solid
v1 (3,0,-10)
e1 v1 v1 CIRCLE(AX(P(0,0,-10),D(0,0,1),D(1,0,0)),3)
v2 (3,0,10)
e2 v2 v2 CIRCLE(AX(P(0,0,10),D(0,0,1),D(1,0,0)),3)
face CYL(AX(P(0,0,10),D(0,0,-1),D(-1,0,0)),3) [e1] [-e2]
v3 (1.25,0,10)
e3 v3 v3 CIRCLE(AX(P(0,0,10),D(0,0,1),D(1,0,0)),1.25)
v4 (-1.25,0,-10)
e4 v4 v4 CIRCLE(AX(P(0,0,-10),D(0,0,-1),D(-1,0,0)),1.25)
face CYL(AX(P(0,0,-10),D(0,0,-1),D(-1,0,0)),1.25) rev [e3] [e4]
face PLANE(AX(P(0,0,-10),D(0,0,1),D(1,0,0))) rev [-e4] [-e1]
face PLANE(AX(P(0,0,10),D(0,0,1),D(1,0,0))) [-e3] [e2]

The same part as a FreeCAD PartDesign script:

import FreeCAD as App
import Part
import Sketcher
from FreeCAD import Vector

doc = App.newDocument("Part")
params = doc.addObject("Spreadsheet::Sheet", "Params")
for row, (alias, value) in enumerate([
    ("sketch1_diameter", "6 mm"),
    ("pad1_length", "20 mm"),
    ("sketch2_diameter", "2.5 mm"),
    ("hole_diameter", "2.5 mm"),
    ("hole_depth", "6.5 mm"),
    ("sketch3_diameter", "2.5 mm"),
    ("hole2_diameter", "2.5 mm"),
    ("hole2_depth", "6.5 mm"),
    ("sketch4_diameter", "2.5 mm"),
    ("pocket1_length", "20 mm"),
], start=1):
    params.set(f"A{row}", alias)
    params.set(f"B{row}", "=" + value)
    params.setAlias(f"B{row}", alias)

body = doc.addObject("PartDesign::Body", "Body")

sketch1 = body.newObject("Sketcher::SketchObject", "Sketch")
sketch1.AttachmentSupport = (doc.getObject("XY_Plane"), [""])
sketch1.MapMode = "FlatFace"
sketch1.addGeometry(Part.Circle(Vector(0, 0, 0), Vector(0, 0, 1), 3), False)
sketch1.addConstraint(Sketcher.Constraint("Coincident", 0, 3, -1, 1))
sketch1.addConstraint(Sketcher.Constraint("Diameter", 0, 6.0))
sketch1.setExpression("Constraints[1]", "Params.sketch1_diameter")
pad1 = body.newObject("PartDesign::Pad", "Pad")
pad1.Profile = sketch1
pad1.setExpression("Length", "Params.pad1_length")
pad1.Midplane = True

sketch2 = body.newObject("Sketcher::SketchObject", "Sketch001")
sketch2.AttachmentSupport = (doc.getObject("XY_Plane"), [""])
sketch2.MapMode = "FlatFace"
sketch2.AttachmentOffset = App.Placement(Vector(0, 0, 10), App.Rotation())
sketch2.addGeometry(Part.Circle(Vector(0, 0, 0), Vector(0, 0, 1), 1.25), False)
sketch2.addConstraint(Sketcher.Constraint("Coincident", 0, 3, -1, 1))
sketch2.addConstraint(Sketcher.Constraint("Diameter", 0, 2.5))
sketch2.setExpression("Constraints[1]", "Params.sketch2_diameter")
doc.recompute()
hole = body.newObject("PartDesign::Hole", "Hole")
hole.Profile = sketch2
hole.ThreadType = "None"
hole.setExpression("Diameter", "Params.hole_diameter")
hole.DepthType = "Dimension"
hole.setExpression("Depth", "Params.hole_depth")
hole.DrillPoint = "Angled"
hole.DrillPointAngle = 118

sketch3 = body.newObject("Sketcher::SketchObject", "Sketch002")
sketch3.AttachmentSupport = (doc.getObject("XY_Plane"), [""])
sketch3.MapMode = "FlatFace"
sketch3.AttachmentOffset = App.Placement(Vector(0, 0, -10), App.Rotation())
sketch3.addGeometry(Part.Circle(Vector(0, 0, 0), Vector(0, 0, 1), 1.25), False)
sketch3.addConstraint(Sketcher.Constraint("Coincident", 0, 3, -1, 1))
sketch3.addConstraint(Sketcher.Constraint("Diameter", 0, 2.5))
sketch3.setExpression("Constraints[1]", "Params.sketch3_diameter")
doc.recompute()
hole2 = body.newObject("PartDesign::Hole", "Hole001")
hole2.Profile = sketch3
hole2.ThreadType = "None"
hole2.setExpression("Diameter", "Params.hole2_diameter")
hole2.DepthType = "Dimension"
hole2.setExpression("Depth", "Params.hole2_depth")
hole2.DrillPoint = "Angled"
hole2.DrillPointAngle = 118
hole2.Reversed = True

sketch4 = body.newObject("Sketcher::SketchObject", "Sketch003")
sketch4.AttachmentSupport = (doc.getObject("XY_Plane"), [""])
sketch4.MapMode = "FlatFace"
sketch4.AttachmentOffset = App.Placement(Vector(0, 0, -10), App.Rotation())
sketch4.addGeometry(Part.Circle(Vector(0, 0, 0), Vector(0, 0, 1), 1.25), False)
sketch4.addConstraint(Sketcher.Constraint("Coincident", 0, 3, -1, 1))
sketch4.addConstraint(Sketcher.Constraint("Diameter", 0, 2.5))
sketch4.setExpression("Constraints[1]", "Params.sketch4_diameter")
pocket1 = body.newObject("PartDesign::Pocket", "Pocket")
pocket1.Profile = sketch4
pocket1.setExpression("Length", "Params.pocket1_length")
pocket1.Reversed = True

doc.recompute()
